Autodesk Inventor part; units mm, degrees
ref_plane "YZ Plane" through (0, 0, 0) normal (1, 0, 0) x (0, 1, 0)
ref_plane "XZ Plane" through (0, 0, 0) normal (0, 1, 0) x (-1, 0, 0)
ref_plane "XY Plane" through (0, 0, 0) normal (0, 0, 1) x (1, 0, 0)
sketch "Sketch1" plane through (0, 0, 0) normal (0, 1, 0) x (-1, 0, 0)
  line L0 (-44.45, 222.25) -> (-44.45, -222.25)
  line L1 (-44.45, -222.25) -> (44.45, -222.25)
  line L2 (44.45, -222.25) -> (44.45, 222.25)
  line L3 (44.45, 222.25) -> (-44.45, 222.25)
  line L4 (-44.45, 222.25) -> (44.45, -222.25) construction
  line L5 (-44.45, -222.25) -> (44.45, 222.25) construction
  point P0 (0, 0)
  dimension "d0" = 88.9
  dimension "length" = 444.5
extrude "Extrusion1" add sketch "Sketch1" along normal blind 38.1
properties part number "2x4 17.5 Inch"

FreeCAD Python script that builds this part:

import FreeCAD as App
import Part
import Sketcher

V = App.Vector
Q = App.Units.Quantity


def add_polygon(sketch, points):
    """Adds a closed chain of lines whose ends are joined by coincident constraints."""
    first, n = sketch.GeometryCount, len(points)
    for a, b in zip(points, points[1:] + points[:1]):
        sketch.addGeometry(Part.LineSegment(App.Vector(*a, 0), App.Vector(*b, 0)), False)
    for i in range(n):
        sketch.addConstraint(Sketcher.Constraint("Coincident", first + i, 2, first + (i + 1) % n, 1))

doc = App.newDocument("Part")
body = doc.addObject("PartDesign::Body", "Body")

sketch1 = body.newObject("Sketcher::SketchObject", "Sketch")
sketch1.AttachmentSupport = (doc.getObject("XZ_Plane"), [""])
sketch1.MapMode = "FlatFace"
add_polygon(sketch1, [(-44, 222), (44, 222), (44, -222), (-44, -222)])
sketch1.addConstraint(Sketcher.Constraint("Horizontal", 0))
sketch1.addConstraint(Sketcher.Constraint("Vertical", 1))
sketch1.addConstraint(Sketcher.Constraint("Horizontal", 2))
sketch1.addConstraint(Sketcher.Constraint("Vertical", 3))
sketch1.addConstraint(Sketcher.Constraint("Symmetric", 0, 2, 2, 2, -1, 1))
sketch1.addConstraint(Sketcher.Constraint("DistanceX", 0, 1, 0, 2, Q("3.5 in")))
sketch1.addConstraint(Sketcher.Constraint("DistanceY", 1, 2, 1, 1, Q("17.5 in")))
pad1 = body.newObject("PartDesign::Pad", "Pad")
pad1.Profile = sketch1
pad1.Length = Q("1.5 in")
pad1.Reversed = True

doc.recompute()
